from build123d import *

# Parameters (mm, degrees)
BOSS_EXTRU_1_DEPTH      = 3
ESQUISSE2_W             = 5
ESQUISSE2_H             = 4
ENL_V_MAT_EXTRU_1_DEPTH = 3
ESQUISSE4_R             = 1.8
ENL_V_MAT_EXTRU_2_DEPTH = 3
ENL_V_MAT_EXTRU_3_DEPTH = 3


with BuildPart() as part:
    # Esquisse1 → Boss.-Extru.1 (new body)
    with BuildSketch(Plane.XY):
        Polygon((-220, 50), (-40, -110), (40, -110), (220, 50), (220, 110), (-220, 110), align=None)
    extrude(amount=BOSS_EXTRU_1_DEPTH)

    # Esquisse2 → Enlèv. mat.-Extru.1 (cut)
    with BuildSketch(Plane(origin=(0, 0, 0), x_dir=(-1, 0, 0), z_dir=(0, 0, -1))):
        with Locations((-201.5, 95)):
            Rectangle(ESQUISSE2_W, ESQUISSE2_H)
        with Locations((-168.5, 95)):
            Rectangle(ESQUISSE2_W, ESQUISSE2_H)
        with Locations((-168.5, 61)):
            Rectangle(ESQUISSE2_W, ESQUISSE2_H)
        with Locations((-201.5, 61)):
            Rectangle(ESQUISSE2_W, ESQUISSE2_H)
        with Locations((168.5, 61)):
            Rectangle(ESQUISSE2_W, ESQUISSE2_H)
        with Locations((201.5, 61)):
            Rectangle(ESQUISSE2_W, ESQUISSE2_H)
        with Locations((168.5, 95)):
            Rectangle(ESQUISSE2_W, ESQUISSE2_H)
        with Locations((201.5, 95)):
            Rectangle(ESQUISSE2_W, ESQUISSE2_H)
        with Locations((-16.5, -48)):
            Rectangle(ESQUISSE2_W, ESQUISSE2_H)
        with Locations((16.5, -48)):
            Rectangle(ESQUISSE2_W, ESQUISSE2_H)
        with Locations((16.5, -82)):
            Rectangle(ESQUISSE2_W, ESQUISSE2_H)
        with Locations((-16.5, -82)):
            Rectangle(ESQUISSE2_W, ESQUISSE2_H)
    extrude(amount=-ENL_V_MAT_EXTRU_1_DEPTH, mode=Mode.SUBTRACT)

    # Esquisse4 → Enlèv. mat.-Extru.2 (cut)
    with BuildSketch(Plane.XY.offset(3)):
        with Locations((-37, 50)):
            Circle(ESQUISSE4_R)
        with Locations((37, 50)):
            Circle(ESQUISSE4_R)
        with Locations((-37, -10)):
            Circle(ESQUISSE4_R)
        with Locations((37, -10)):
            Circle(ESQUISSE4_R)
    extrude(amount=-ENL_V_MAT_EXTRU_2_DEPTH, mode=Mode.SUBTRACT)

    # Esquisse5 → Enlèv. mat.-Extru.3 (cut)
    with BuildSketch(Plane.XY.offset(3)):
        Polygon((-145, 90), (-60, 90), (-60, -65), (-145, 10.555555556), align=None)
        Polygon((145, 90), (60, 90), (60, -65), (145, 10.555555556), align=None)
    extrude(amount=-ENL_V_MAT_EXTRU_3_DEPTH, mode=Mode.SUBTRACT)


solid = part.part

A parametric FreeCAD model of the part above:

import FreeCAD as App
import Part
import Sketcher
Q = App.Units.Quantity

doc = App.newDocument("Part")
body = doc.addObject("PartDesign::Body", "Body")

sketch1 = doc.addObject("Sketcher::SketchObject", "Sketch")
body.addObject(sketch1)
sketch1.AttachmentSupport = (doc.XY_Plane, [""])
sketch1.MapMode = "FlatFace"
sketch1.addGeometry([
    Part.LineSegment(App.Vector(-220, 50, 0), App.Vector(-40, -110, 0)),
    Part.LineSegment(App.Vector(-40, -110, 0), App.Vector(40, -110, 0)),
    Part.LineSegment(App.Vector(40, -110, 0), App.Vector(220, 50, 0)),
    Part.LineSegment(App.Vector(220, 50, 0), App.Vector(220, 110, 0)),
    Part.LineSegment(App.Vector(220, 110, 0), App.Vector(-220, 110, 0)),
    Part.LineSegment(App.Vector(-220, 110, 0), App.Vector(-220, 50, 0)),
], False)
sketch1.addConstraint([
    Sketcher.Constraint("Coincident", 0, 2, 1, 1),
    Sketcher.Constraint("Coincident", 1, 2, 2, 1),
    Sketcher.Constraint("Coincident", 2, 2, 3, 1),
    Sketcher.Constraint("Coincident", 3, 2, 4, 1),
    Sketcher.Constraint("Coincident", 4, 2, 5, 1),
    Sketcher.Constraint("Coincident", 5, 2, 0, 1),
    Sketcher.Constraint("Horizontal", 1),
    Sketcher.Constraint("Vertical", 3),
    Sketcher.Constraint("Horizontal", 4),
    Sketcher.Constraint("Vertical", 5),
    Sketcher.Constraint("Symmetric", 2, 2, 5, 2, -2),
    Sketcher.Constraint("Equal", 0, 2),
    Sketcher.Constraint("DistanceX", 1, 1, 1, 2, Q("80 mm")),
    Sketcher.Constraint("DistanceX", 4, 2, 4, 1, Q("440 mm")),
    Sketcher.Constraint("DistanceY", 3, 1, 3, 2, Q("60 mm")),
    Sketcher.Constraint("DistanceY", 0, 2, -1, 1, Q("110 mm")),
    Sketcher.Constraint("DistanceY", -1, 1, 2, 2, Q("50 mm")),
])
pad1 = doc.addObject("PartDesign::Pad", "Pad")
body.addObject(pad1)
pad1.Profile = sketch1
pad1.Length = 3

sketch2 = doc.addObject("Sketcher::SketchObject", "Sketch001")
body.addObject(sketch2)
sketch2.AttachmentSupport = (doc.XY_Plane, [""])
sketch2.MapMode = "FlatFace"
sketch2.addGeometry([
    Part.LineSegment(App.Vector(204, 97, 0), App.Vector(204, 93, 0)),
    Part.LineSegment(App.Vector(204, 93, 0), App.Vector(199, 93, 0)),
    Part.LineSegment(App.Vector(199, 93, 0), App.Vector(199, 97, 0)),
    Part.LineSegment(App.Vector(199, 97, 0), App.Vector(204, 97, 0)),
    Part.LineSegment(App.Vector(171, 97, 0), App.Vector(171, 93, 0)),
    Part.LineSegment(App.Vector(171, 93, 0), App.Vector(166, 93, 0)),
    Part.LineSegment(App.Vector(166, 93, 0), App.Vector(166, 97, 0)),
    Part.LineSegment(App.Vector(166, 97, 0), App.Vector(171, 97, 0)),
    Part.LineSegment(App.Vector(171, 63, 0), App.Vector(171, 59, 0)),
    Part.LineSegment(App.Vector(171, 59, 0), App.Vector(166, 59, 0)),
    Part.LineSegment(App.Vector(166, 59, 0), App.Vector(166, 63, 0)),
    Part.LineSegment(App.Vector(166, 63, 0), App.Vector(171, 63, 0)),
    Part.LineSegment(App.Vector(204, 63, 0), App.Vector(204, 59, 0)),
    Part.LineSegment(App.Vector(204, 59, 0), App.Vector(199, 59, 0)),
    Part.LineSegment(App.Vector(199, 59, 0), App.Vector(199, 63, 0)),
    Part.LineSegment(App.Vector(199, 63, 0), App.Vector(204, 63, 0)),
    Part.LineSegment(App.Vector(-166, 63, 0), App.Vector(-166, 59, 0)),
    Part.LineSegment(App.Vector(-166, 59, 0), App.Vector(-171, 59, 0)),
    Part.LineSegment(App.Vector(-171, 59, 0), App.Vector(-171, 63, 0)),
    Part.LineSegment(App.Vector(-171, 63, 0), App.Vector(-166, 63, 0)),
    Part.LineSegment(App.Vector(-199, 63, 0), App.Vector(-199, 59, 0)),
    Part.LineSegment(App.Vector(-199, 59, 0), App.Vector(-204, 59, 0)),
    Part.LineSegment(App.Vector(-204, 59, 0), App.Vector(-204, 63, 0)),
    Part.LineSegment(App.Vector(-204, 63, 0), App.Vector(-199, 63, 0)),
    Part.LineSegment(App.Vector(-166, 97, 0), App.Vector(-166, 93, 0)),
    Part.LineSegment(App.Vector(-166, 93, 0), App.Vector(-171, 93, 0)),
    Part.LineSegment(App.Vector(-171, 93, 0), App.Vector(-171, 97, 0)),
    Part.LineSegment(App.Vector(-171, 97, 0), App.Vector(-166, 97, 0)),
    Part.LineSegment(App.Vector(-199, 97, 0), App.Vector(-199, 93, 0)),
    Part.LineSegment(App.Vector(-199, 93, 0), App.Vector(-204, 93, 0)),
    Part.LineSegment(App.Vector(-204, 93, 0), App.Vector(-204, 97, 0)),
    Part.LineSegment(App.Vector(-204, 97, 0), App.Vector(-199, 97, 0)),
    Part.LineSegment(App.Vector(19, -46, 0), App.Vector(19, -50, 0)),
    Part.LineSegment(App.Vector(19, -50, 0), App.Vector(14, -50, 0)),
    Part.LineSegment(App.Vector(14, -50, 0), App.Vector(14, -46, 0)),
    Part.LineSegment(App.Vector(14, -46, 0), App.Vector(19, -46, 0)),
    Part.LineSegment(App.Vector(-14, -46, 0), App.Vector(-14, -50, 0)),
    Part.LineSegment(App.Vector(-14, -50, 0), App.Vector(-19, -50, 0)),
    Part.LineSegment(App.Vector(-19, -50, 0), App.Vector(-19, -46, 0)),
    Part.LineSegment(App.Vector(-19, -46, 0), App.Vector(-14, -46, 0)),
    Part.LineSegment(App.Vector(-14, -80, 0), App.Vector(-14, -84, 0)),
    Part.LineSegment(App.Vector(-14, -84, 0), App.Vector(-19, -84, 0)),
    Part.LineSegment(App.Vector(-19, -84, 0), App.Vector(-19, -80, 0)),
    Part.LineSegment(App.Vector(-19, -80, 0), App.Vector(-14, -80, 0)),
    Part.LineSegment(App.Vector(19, -80, 0), App.Vector(19, -84, 0)),
    Part.LineSegment(App.Vector(19, -84, 0), App.Vector(14, -84, 0)),
    Part.LineSegment(App.Vector(14, -84, 0), App.Vector(14, -80, 0)),
    Part.LineSegment(App.Vector(14, -80, 0), App.Vector(19, -80, 0)),
], False)
sketch2.addConstraint([
    Sketcher.Constraint("Coincident", 0, 2, 1, 1),
    Sketcher.Constraint("Coincident", 1, 2, 2, 1),
    Sketcher.Constraint("Coincident", 2, 2, 3, 1),
    Sketcher.Constraint("Coincident", 3, 2, 0, 1),
    Sketcher.Constraint("Coincident", 4, 2, 5, 1),
    Sketcher.Constraint("Coincident", 5, 2, 6, 1),
    Sketcher.Constraint("Coincident", 6, 2, 7, 1),
    Sketcher.Constraint("Coincident", 7, 2, 4, 1),
    Sketcher.Constraint("Coincident", 8, 2, 9, 1),
    Sketcher.Constraint("Coincident", 9, 2, 10, 1),
    Sketcher.Constraint("Coincident", 10, 2, 11, 1),
    Sketcher.Constraint("Coincident", 11, 2, 8, 1),
    Sketcher.Constraint("Coincident", 12, 2, 13, 1),
    Sketcher.Constraint("Coincident", 13, 2, 14, 1),
    Sketcher.Constraint("Coincident", 14, 2, 15, 1),
    Sketcher.Constraint("Coincident", 15, 2, 12, 1),
    Sketcher.Constraint("Coincident", 16, 2, 17, 1),
    Sketcher.Constraint("Coincident", 17, 2, 18, 1),
    Sketcher.Constraint("Coincident", 18, 2, 19, 1),
    Sketcher.Constraint("Coincident", 19, 2, 16, 1),
    Sketcher.Constraint("Coincident", 20, 2, 21, 1),
    Sketcher.Constraint("Coincident", 21, 2, 22, 1),
    Sketcher.Constraint("Coincident", 22, 2, 23, 1),
    Sketcher.Constraint("Coincident", 23, 2, 20, 1),
    Sketcher.Constraint("Coincident", 24, 2, 25, 1),
    Sketcher.Constraint("Coincident", 25, 2, 26, 1),
    Sketcher.Constraint("Coincident", 26, 2, 27, 1),
    Sketcher.Constraint("Coincident", 27, 2, 24, 1),
    Sketcher.Constraint("Coincident", 28, 2, 29, 1),
    Sketcher.Constraint("Coincident", 29, 2, 30, 1),
    Sketcher.Constraint("Coincident", 30, 2, 31, 1),
    Sketcher.Constraint("Coincident", 31, 2, 28, 1),
    Sketcher.Constraint("Coincident", 32, 2, 33, 1),
    Sketcher.Constraint("Coincident", 33, 2, 34, 1),
    Sketcher.Constraint("Coincident", 34, 2, 35, 1),
    Sketcher.Constraint("Coincident", 35, 2, 32, 1),
    Sketcher.Constraint("Coincident", 36, 2, 37, 1),
    Sketcher.Constraint("Coincident", 37, 2, 38, 1),
    Sketcher.Constraint("Coincident", 38, 2, 39, 1),
    Sketcher.Constraint("Coincident", 39, 2, 36, 1),
    Sketcher.Constraint("Coincident", 40, 2, 41, 1),
    Sketcher.Constraint("Coincident", 41, 2, 42, 1),
    Sketcher.Constraint("Coincident", 42, 2, 43, 1),
    Sketcher.Constraint("Coincident", 43, 2, 40, 1),
    Sketcher.Constraint("Coincident", 44, 2, 45, 1),
    Sketcher.Constraint("Coincident", 45, 2, 46, 1),
    Sketcher.Constraint("Coincident", 46, 2, 47, 1),
    Sketcher.Constraint("Coincident", 47, 2, 44, 1),
    Sketcher.Constraint("Vertical", 0),
    Sketcher.Constraint("Horizontal", 1),
    Sketcher.Constraint("Vertical", 2),
    Sketcher.Constraint("Horizontal", 3),
    Sketcher.Constraint("Vertical", 4),
    Sketcher.Constraint("Horizontal", 5),
    Sketcher.Constraint("Vertical", 6),
    Sketcher.Constraint("Horizontal", 7),
    Sketcher.Constraint("Vertical", 8),
    Sketcher.Constraint("Horizontal", 9),
    Sketcher.Constraint("Vertical", 10),
    Sketcher.Constraint("Horizontal", 11),
    Sketcher.Constraint("Vertical", 12),
    Sketcher.Constraint("Horizontal", 13),
    Sketcher.Constraint("Vertical", 14),
    Sketcher.Constraint("Horizontal", 15),
    Sketcher.Constraint("Vertical", 16),
    Sketcher.Constraint("Horizontal", 17),
    Sketcher.Constraint("Vertical", 18),
    Sketcher.Constraint("Horizontal", 19),
    Sketcher.Constraint("Vertical", 20),
    Sketcher.Constraint("Horizontal", 21),
    Sketcher.Constraint("Vertical", 22),
    Sketcher.Constraint("Horizontal", 23),
    Sketcher.Constraint("Vertical", 24),
    Sketcher.Constraint("Horizontal", 25),
    Sketcher.Constraint("Vertical", 26),
    Sketcher.Constraint("Horizontal", 27),
    Sketcher.Constraint("Vertical", 28),
    Sketcher.Constraint("Horizontal", 29),
    Sketcher.Constraint("Vertical", 30),
    Sketcher.Constraint("Horizontal", 31),
    Sketcher.Constraint("Vertical", 32),
    Sketcher.Constraint("Horizontal", 33),
    Sketcher.Constraint("Vertical", 34),
    Sketcher.Constraint("Horizontal", 35),
    Sketcher.Constraint("Vertical", 36),
    Sketcher.Constraint("Horizontal", 37),
    Sketcher.Constraint("Vertical", 38),
    Sketcher.Constraint("Horizontal", 39),
    Sketcher.Constraint("Vertical", 40),
    Sketcher.Constraint("Horizontal", 41),
    Sketcher.Constraint("Vertical", 42),
    Sketcher.Constraint("Horizontal", 43),
    Sketcher.Constraint("Vertical", 44),
    Sketcher.Constraint("Horizontal", 45),
    Sketcher.Constraint("Vertical", 46),
    Sketcher.Constraint("Horizontal", 47),
    Sketcher.Constraint("Symmetric", 9, 2, 16, 2, -2),
    Sketcher.Constraint("Symmetric", 11, 2, 18, 2, -2),
    Sketcher.Constraint("Symmetric", 13, 2, 20, 2, -2),
    Sketcher.Constraint("Symmetric", 15, 2, 22, 2, -2),
    Sketcher.Constraint("Symmetric", 5, 2, 24, 2, -2),
    Sketcher.Constraint("Symmetric", 7, 2, 26, 2, -2),
    Sketcher.Constraint("Symmetric", 1, 2, 28, 2, -2),
    Sketcher.Constraint("Symmetric", 3, 2, 30, 2, -2),
    Sketcher.Constraint("Symmetric", 33, 2, 36, 2, -2),
    Sketcher.Constraint("Symmetric", 35, 2, 38, 2, -2),
    Sketcher.Constraint("Symmetric", 41, 2, 44, 2, -2),
    Sketcher.Constraint("Symmetric", 43, 2, 46, 2, -2),
    Sketcher.Constraint("Horizontal", 1, 2, 4, 2),
    Sketcher.Constraint("Horizontal", 3, 2, 6, 2),
    Sketcher.Constraint("Horizontal", 9, 2, 12, 2),
    Sketcher.Constraint("Horizontal", 11, 2, 14, 2),
    Sketcher.Constraint("Vertical", 7, 2, 8, 2),
    Sketcher.Constraint("Vertical", 6, 2, 9, 2),
    Sketcher.Constraint("Vertical", 3, 2, 12, 2),
    Sketcher.Constraint("Vertical", 2, 2, 13, 2),
    Sketcher.Constraint("Vertical", 39, 2, 40, 2),
    Sketcher.Constraint("Vertical", 38, 2, 41, 2),
    Sketcher.Constraint("Equal", 3, 5),
    Sketcher.Constraint("Equal", 31, 33),
    Sketcher.Constraint("Equal", 6, 8),
    Sketcher.Constraint("Equal", 30, 32),
    Sketcher.Constraint("Equal", 38, 40),
    Sketcher.Constraint("DistanceX", 1, 2, 1, 1, Q("5 mm")),
    Sketcher.Constraint("DistanceY", 0, 2, 0, 1, Q("4 mm")),
    Sketcher.Constraint("DistanceX", -1, 1, 0, 2, Q("204 mm")),
    Sketcher.Constraint("DistanceY", -1, 1, 0, 2, Q("93 mm")),
    Sketcher.Constraint("DistanceX", -1, 1, 4, 2, Q("171 mm")),
    Sketcher.Constraint("DistanceY", -1, 1, 8, 2, Q("59 mm")),
    Sketcher.Constraint("DistanceX", -1, 1, 32, 2, Q("19 mm")),
    Sketcher.Constraint("DistanceY", 32, 2, -1, 1, Q("50 mm")),
    Sketcher.Constraint("DistanceY", 40, 2, -1, 1, Q("84 mm")),
])
pocket1 = doc.addObject("PartDesign::Pocket", "Pocket")
body.addObject(pocket1)
pocket1.Profile = sketch2
pocket1.Length = 3
pocket1.Reversed = True

sketch3 = doc.addObject("Sketcher::SketchObject", "Sketch002")
body.addObject(sketch3)
sketch3.AttachmentSupport = (doc.XY_Plane, [""])
sketch3.MapMode = "FlatFace"
sketch3.AttachmentOffset = App.Placement(App.Vector(0, 0, 3), App.Rotation())
sketch3.addGeometry([
    Part.Circle(App.Vector(-37, 50, 0), App.Vector(0, 0, 1), 1.8),
    Part.Circle(App.Vector(37, 50, 0), App.Vector(0, 0, 1), 1.8),
    Part.Circle(App.Vector(-37, -10, 0), App.Vector(0, 0, 1), 1.8),
    Part.Circle(App.Vector(37, -10, 0), App.Vector(0, 0, 1), 1.8),
], False)
sketch3.addConstraint([
    Sketcher.Constraint("Equal", 0, 1),
    Sketcher.Constraint("Equal", 1, 2),
    Sketcher.Constraint("Equal", 2, 3),
    Sketcher.Constraint("Symmetric", 0, 3, 1, 3, -2),
    Sketcher.Constraint("Symmetric", 2, 3, 3, 3, -2),
    Sketcher.Constraint("Vertical", 0, 3, 2, 3),
    Sketcher.Constraint("Diameter", 0, Q("3.6 mm")),
    Sketcher.Constraint("DistanceX", 0, 3, -1, 1, Q("37 mm")),
    Sketcher.Constraint("DistanceY", -1, 1, 0, 3, Q("50 mm")),
    Sketcher.Constraint("DistanceY", 2, 3, -1, 1, Q("10 mm")),
])
pocket2 = doc.addObject("PartDesign::Pocket", "Pocket001")
body.addObject(pocket2)
pocket2.Profile = sketch3
pocket2.Length = 3

sketch4 = doc.addObject("Sketcher::SketchObject", "Sketch003")
body.addObject(sketch4)
sketch4.AttachmentSupport = (doc.XY_Plane, [""])
sketch4.MapMode = "FlatFace"
sketch4.AttachmentOffset = App.Placement(App.Vector(0, 0, 3), App.Rotation())
sketch4.addGeometry([
    Part.LineSegment(App.Vector(-60, 90, 0), App.Vector(-145, 90, 0)),
    Part.LineSegment(App.Vector(-145, 90, 0), App.Vector(-145, 11, 0)),
    Part.LineSegment(App.Vector(-145, 11, 0), App.Vector(-60, -65, 0)),
    Part.LineSegment(App.Vector(-60, -65, 0), App.Vector(-60, 90, 0)),
    Part.LineSegment(App.Vector(145, 90, 0), App.Vector(60, 90, 0)),
    Part.LineSegment(App.Vector(60, 90, 0), App.Vector(60, -65, 0)),
    Part.LineSegment(App.Vector(60, -65, 0), App.Vector(145, 11, 0)),
    Part.LineSegment(App.Vector(145, 11, 0), App.Vector(145, 90, 0)),
], False)
sketch4.addConstraint([
    Sketcher.Constraint("Coincident", 0, 2, 1, 1),
    Sketcher.Constraint("Coincident", 1, 2, 2, 1),
    Sketcher.Constraint("Coincident", 2, 2, 3, 1),
    Sketcher.Constraint("Coincident", 3, 2, 0, 1),
    Sketcher.Constraint("Coincident", 4, 2, 5, 1),
    Sketcher.Constraint("Coincident", 5, 2, 6, 1),
    Sketcher.Constraint("Coincident", 6, 2, 7, 1),
    Sketcher.Constraint("Coincident", 7, 2, 4, 1),
    Sketcher.Constraint("Horizontal", 0),
    Sketcher.Constraint("Vertical", 1),
    Sketcher.Constraint("Vertical", 3),
    Sketcher.Constraint("Horizontal", 4),
    Sketcher.Constraint("Vertical", 5),
    Sketcher.Constraint("Vertical", 7),
    Sketcher.Constraint("Symmetric", 3, 2, 4, 2, -2),
    Sketcher.Constraint("Symmetric", 1, 2, 6, 2, -2),
    Sketcher.Constraint("Horizontal", 2, 2, 5, 2),
    Sketcher.Constraint("DistanceX", 0, 2, 0, 1, Q("85 mm")),
    Sketcher.Constraint("DistanceY", 3, 1, 3, 2, Q("155 mm")),
    Sketcher.Constraint("DistanceX", 0, 2, -1, 1, Q("145 mm")),
    Sketcher.Constraint("DistanceY", -1, 1, 0, 2, Q("90 mm")),
    Sketcher.Constraint("Distance", 2, Q("113.726171 mm")),
])
pocket3 = doc.addObject("PartDesign::Pocket", "Pocket002")
body.addObject(pocket3)
pocket3.Profile = sketch4
pocket3.Length = 3

doc.recompute()
